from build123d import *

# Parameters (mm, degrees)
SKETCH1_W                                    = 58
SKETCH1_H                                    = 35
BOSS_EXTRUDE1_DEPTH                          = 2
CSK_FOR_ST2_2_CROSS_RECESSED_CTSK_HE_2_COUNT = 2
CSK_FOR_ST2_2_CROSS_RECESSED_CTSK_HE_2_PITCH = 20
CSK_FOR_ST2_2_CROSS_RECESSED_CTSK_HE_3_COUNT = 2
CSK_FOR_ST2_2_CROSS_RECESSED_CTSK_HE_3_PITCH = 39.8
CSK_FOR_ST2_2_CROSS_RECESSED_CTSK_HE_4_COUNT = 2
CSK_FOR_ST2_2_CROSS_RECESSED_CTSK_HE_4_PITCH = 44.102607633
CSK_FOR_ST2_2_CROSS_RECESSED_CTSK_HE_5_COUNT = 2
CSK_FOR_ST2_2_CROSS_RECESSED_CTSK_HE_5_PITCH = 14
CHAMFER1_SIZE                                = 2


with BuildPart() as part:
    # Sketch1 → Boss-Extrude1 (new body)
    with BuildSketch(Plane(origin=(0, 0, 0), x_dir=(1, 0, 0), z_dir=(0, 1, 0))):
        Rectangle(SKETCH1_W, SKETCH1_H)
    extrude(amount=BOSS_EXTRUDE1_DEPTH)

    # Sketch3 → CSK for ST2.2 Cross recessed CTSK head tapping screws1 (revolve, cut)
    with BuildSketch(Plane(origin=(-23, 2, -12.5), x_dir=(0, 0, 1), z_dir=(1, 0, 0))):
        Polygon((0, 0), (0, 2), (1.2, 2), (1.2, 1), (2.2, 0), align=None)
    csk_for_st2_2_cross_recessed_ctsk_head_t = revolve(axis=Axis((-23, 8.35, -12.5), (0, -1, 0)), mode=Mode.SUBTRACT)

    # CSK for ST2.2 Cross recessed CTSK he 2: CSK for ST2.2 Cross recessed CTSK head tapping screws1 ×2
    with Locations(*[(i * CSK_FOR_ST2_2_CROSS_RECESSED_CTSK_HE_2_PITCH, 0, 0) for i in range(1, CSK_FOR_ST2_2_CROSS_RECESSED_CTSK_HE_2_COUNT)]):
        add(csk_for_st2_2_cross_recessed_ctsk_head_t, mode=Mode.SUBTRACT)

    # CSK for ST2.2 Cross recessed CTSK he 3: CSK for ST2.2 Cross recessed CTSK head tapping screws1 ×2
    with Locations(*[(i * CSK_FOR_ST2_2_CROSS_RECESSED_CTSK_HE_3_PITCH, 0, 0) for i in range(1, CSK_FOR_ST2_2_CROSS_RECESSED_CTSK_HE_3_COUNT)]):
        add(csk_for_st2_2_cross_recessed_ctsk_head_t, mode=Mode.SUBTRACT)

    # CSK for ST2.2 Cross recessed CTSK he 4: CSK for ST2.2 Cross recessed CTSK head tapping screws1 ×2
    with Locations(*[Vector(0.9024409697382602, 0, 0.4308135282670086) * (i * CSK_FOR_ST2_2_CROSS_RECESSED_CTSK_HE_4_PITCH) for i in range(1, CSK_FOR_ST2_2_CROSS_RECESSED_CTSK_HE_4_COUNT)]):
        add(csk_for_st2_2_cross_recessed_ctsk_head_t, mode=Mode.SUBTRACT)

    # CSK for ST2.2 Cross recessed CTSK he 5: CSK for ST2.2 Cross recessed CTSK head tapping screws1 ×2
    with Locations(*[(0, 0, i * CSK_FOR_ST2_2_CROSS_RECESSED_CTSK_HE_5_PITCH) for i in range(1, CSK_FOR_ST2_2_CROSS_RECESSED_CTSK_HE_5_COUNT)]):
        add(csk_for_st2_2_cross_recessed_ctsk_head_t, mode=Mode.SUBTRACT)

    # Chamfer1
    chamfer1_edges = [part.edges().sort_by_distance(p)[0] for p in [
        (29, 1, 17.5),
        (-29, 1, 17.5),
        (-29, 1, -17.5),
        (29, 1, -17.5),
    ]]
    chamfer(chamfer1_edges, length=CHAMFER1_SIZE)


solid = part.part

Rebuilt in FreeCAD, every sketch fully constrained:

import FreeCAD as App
import Part
import Sketcher
from FreeCAD import Vector
Q = App.Units.Quantity


def edges_at(feature, points):
    """Names of the edges that pass closest to the given points."""
    edges = feature.Shape.Edges
    near = lambda p: min(range(len(edges)), key=lambda i: edges[i].distToShape(Part.Vertex(*p))[0])
    return sorted({f"Edge{near(p) + 1}" for p in points})

doc = App.newDocument("Part")
body = doc.addObject("PartDesign::Body", "Body")

# Sketch on XZ plane
sketch1 = body.newObject("Sketcher::SketchObject", "Sketch")
sketch1.AttachmentSupport = (doc.getObject("XZ_Plane"), [""])
sketch1.MapMode = "FlatFace"
sketch1.addGeometry([
    Part.LineSegment(Vector(-29, -18, 0), Vector(-29, 18, 0)),
    Part.LineSegment(Vector(-29, 18, 0), Vector(29, 18, 0)),
    Part.LineSegment(Vector(29, 18, 0), Vector(29, -18, 0)),
    Part.LineSegment(Vector(29, -18, 0), Vector(-29, -18, 0)),
], False)
sketch1.addConstraint([
    Sketcher.Constraint("Coincident", 0, 2, 1, 1),
    Sketcher.Constraint("Coincident", 1, 2, 2, 1),
    Sketcher.Constraint("Coincident", 2, 2, 3, 1),
    Sketcher.Constraint("Coincident", 3, 2, 0, 1),
    Sketcher.Constraint("Vertical", 0),
    Sketcher.Constraint("Horizontal", 1),
    Sketcher.Constraint("Vertical", 2),
    Sketcher.Constraint("Horizontal", 3),
    Sketcher.Constraint("Symmetric", 0, 2, 2, 2, -1, 1),
    Sketcher.Constraint("DistanceX", 1, 1, 1, 2, Q("58 mm")),
    Sketcher.Constraint("DistanceY", 0, 1, 0, 2, Q("35 mm")),
])
pad1 = body.newObject("PartDesign::Pad", "Pad")
pad1.Profile = sketch1
pad1.Length = 2
pad1.Reversed = True

# Sketch on YZ plane
sketch2 = body.newObject("Sketcher::SketchObject", "Sketch001")
sketch2.AttachmentSupport = (doc.getObject("YZ_Plane"), [""])
sketch2.MapMode = "FlatFace"
sketch2.AttachmentOffset = App.Placement(Vector(0, 0, -23), App.Rotation())
sketch2.addGeometry([
    Part.LineSegment(Vector(0, -12.5, 0), Vector(2, -12.5, 0)),  # 0
    Part.LineSegment(Vector(2, -12.5, 0), Vector(2, -10.3, 0)),  # 1
    Part.LineSegment(Vector(2, -10.3, 0), Vector(1, -11.3, 0)),  # 2
    Part.LineSegment(Vector(1, -11.3, 0), Vector(0, -11.3, 0)),  # 3
    Part.LineSegment(Vector(0, -11.3, 0), Vector(0, -12.5, 0)),  # 4
], False)
sketch2.addGeometry(Part.LineSegment(Vector(2, -12.5, 0), Vector(0, -12.5, 0)), True)  # axis
sketch2.addConstraint([
    Sketcher.Constraint("Coincident", 0, 2, 1, 1),
    Sketcher.Constraint("Coincident", 1, 2, 2, 1),
    Sketcher.Constraint("Coincident", 2, 2, 3, 1),
    Sketcher.Constraint("Coincident", 3, 2, 4, 1),
    Sketcher.Constraint("Coincident", 4, 2, 0, 1),
    Sketcher.Constraint("Horizontal", 0),
    Sketcher.Constraint("Vertical", 1),
    Sketcher.Constraint("Horizontal", 3),
    Sketcher.Constraint("Vertical", 4),
    Sketcher.Constraint("Horizontal", 5),
    Sketcher.Constraint("Coincident", 5, 1, 0, 2),
    Sketcher.Constraint("PointOnObject", 3, 2, -2),
    Sketcher.Constraint("PointOnObject", 5, 2, -2),
    Sketcher.Constraint("DistanceX", 0, 1, 0, 2, Q("2 mm")),
    Sketcher.Constraint("DistanceX", 3, 2, 3, 1, Q("1 mm")),
    Sketcher.Constraint("Angle", 2, Q("-135 deg")),
    Sketcher.Constraint("DistanceY", 1, 1, 1, 2, Q("2.2 mm")),
    Sketcher.Constraint("DistanceY", 0, 2, -1, 1, Q("12.5 mm")),
])
groove = body.newObject("PartDesign::Groove", "Groove")
groove.Profile = sketch2
groove.ReferenceAxis = (sketch2, ["Axis0"])
groove.Angle = 360
doc.recompute()

linearpattern = body.newObject("PartDesign::LinearPattern", "LinearPattern")
linearpattern.Originals = [groove]
linearpattern.Direction = (doc.getObject("X_Axis"), [""])
linearpattern.Mode = "offset"
linearpattern.Offset = 20
linearpattern.Occurrences = 2
body.Tip = linearpattern
doc.recompute()

linearpattern2 = body.newObject("PartDesign::LinearPattern", "LinearPattern001")
linearpattern2.Originals = [groove]
linearpattern2.Direction = (doc.getObject("X_Axis"), [""])
linearpattern2.Mode = "offset"
linearpattern2.Offset = 39.8
linearpattern2.Occurrences = 2
body.Tip = linearpattern2
doc.recompute()

datumline = body.newObject("PartDesign::Line", "DatumLine")
datumline.Placement = App.Placement(Vector(0, 0, 0), App.Rotation(Vector(0, 0, 1), Vector(0.90244097, 0, 0.430813528)))
linearpattern3 = body.newObject("PartDesign::LinearPattern", "LinearPattern002")
linearpattern3.Originals = [groove]
linearpattern3.Direction = (datumline, [""])
linearpattern3.Mode = "offset"
linearpattern3.Offset = 44.102608
linearpattern3.Occurrences = 2
body.Tip = linearpattern3
doc.recompute()

linearpattern4 = body.newObject("PartDesign::LinearPattern", "LinearPattern003")
linearpattern4.Originals = [groove]
linearpattern4.Direction = (doc.getObject("Z_Axis"), [""])
linearpattern4.Mode = "offset"
linearpattern4.Offset = 14
linearpattern4.Occurrences = 2
body.Tip = linearpattern4
doc.recompute()

chamfer = body.newObject("PartDesign::Chamfer", "Chamfer")
chamfer.Base = (linearpattern4, edges_at(linearpattern4, [
    (29, 1, 17.5),
    (-29, 1, 17.5),
    (-29, 1, -17.5),
    (29, 1, -17.5),
]))
chamfer.Size = 2

doc.recompute()
